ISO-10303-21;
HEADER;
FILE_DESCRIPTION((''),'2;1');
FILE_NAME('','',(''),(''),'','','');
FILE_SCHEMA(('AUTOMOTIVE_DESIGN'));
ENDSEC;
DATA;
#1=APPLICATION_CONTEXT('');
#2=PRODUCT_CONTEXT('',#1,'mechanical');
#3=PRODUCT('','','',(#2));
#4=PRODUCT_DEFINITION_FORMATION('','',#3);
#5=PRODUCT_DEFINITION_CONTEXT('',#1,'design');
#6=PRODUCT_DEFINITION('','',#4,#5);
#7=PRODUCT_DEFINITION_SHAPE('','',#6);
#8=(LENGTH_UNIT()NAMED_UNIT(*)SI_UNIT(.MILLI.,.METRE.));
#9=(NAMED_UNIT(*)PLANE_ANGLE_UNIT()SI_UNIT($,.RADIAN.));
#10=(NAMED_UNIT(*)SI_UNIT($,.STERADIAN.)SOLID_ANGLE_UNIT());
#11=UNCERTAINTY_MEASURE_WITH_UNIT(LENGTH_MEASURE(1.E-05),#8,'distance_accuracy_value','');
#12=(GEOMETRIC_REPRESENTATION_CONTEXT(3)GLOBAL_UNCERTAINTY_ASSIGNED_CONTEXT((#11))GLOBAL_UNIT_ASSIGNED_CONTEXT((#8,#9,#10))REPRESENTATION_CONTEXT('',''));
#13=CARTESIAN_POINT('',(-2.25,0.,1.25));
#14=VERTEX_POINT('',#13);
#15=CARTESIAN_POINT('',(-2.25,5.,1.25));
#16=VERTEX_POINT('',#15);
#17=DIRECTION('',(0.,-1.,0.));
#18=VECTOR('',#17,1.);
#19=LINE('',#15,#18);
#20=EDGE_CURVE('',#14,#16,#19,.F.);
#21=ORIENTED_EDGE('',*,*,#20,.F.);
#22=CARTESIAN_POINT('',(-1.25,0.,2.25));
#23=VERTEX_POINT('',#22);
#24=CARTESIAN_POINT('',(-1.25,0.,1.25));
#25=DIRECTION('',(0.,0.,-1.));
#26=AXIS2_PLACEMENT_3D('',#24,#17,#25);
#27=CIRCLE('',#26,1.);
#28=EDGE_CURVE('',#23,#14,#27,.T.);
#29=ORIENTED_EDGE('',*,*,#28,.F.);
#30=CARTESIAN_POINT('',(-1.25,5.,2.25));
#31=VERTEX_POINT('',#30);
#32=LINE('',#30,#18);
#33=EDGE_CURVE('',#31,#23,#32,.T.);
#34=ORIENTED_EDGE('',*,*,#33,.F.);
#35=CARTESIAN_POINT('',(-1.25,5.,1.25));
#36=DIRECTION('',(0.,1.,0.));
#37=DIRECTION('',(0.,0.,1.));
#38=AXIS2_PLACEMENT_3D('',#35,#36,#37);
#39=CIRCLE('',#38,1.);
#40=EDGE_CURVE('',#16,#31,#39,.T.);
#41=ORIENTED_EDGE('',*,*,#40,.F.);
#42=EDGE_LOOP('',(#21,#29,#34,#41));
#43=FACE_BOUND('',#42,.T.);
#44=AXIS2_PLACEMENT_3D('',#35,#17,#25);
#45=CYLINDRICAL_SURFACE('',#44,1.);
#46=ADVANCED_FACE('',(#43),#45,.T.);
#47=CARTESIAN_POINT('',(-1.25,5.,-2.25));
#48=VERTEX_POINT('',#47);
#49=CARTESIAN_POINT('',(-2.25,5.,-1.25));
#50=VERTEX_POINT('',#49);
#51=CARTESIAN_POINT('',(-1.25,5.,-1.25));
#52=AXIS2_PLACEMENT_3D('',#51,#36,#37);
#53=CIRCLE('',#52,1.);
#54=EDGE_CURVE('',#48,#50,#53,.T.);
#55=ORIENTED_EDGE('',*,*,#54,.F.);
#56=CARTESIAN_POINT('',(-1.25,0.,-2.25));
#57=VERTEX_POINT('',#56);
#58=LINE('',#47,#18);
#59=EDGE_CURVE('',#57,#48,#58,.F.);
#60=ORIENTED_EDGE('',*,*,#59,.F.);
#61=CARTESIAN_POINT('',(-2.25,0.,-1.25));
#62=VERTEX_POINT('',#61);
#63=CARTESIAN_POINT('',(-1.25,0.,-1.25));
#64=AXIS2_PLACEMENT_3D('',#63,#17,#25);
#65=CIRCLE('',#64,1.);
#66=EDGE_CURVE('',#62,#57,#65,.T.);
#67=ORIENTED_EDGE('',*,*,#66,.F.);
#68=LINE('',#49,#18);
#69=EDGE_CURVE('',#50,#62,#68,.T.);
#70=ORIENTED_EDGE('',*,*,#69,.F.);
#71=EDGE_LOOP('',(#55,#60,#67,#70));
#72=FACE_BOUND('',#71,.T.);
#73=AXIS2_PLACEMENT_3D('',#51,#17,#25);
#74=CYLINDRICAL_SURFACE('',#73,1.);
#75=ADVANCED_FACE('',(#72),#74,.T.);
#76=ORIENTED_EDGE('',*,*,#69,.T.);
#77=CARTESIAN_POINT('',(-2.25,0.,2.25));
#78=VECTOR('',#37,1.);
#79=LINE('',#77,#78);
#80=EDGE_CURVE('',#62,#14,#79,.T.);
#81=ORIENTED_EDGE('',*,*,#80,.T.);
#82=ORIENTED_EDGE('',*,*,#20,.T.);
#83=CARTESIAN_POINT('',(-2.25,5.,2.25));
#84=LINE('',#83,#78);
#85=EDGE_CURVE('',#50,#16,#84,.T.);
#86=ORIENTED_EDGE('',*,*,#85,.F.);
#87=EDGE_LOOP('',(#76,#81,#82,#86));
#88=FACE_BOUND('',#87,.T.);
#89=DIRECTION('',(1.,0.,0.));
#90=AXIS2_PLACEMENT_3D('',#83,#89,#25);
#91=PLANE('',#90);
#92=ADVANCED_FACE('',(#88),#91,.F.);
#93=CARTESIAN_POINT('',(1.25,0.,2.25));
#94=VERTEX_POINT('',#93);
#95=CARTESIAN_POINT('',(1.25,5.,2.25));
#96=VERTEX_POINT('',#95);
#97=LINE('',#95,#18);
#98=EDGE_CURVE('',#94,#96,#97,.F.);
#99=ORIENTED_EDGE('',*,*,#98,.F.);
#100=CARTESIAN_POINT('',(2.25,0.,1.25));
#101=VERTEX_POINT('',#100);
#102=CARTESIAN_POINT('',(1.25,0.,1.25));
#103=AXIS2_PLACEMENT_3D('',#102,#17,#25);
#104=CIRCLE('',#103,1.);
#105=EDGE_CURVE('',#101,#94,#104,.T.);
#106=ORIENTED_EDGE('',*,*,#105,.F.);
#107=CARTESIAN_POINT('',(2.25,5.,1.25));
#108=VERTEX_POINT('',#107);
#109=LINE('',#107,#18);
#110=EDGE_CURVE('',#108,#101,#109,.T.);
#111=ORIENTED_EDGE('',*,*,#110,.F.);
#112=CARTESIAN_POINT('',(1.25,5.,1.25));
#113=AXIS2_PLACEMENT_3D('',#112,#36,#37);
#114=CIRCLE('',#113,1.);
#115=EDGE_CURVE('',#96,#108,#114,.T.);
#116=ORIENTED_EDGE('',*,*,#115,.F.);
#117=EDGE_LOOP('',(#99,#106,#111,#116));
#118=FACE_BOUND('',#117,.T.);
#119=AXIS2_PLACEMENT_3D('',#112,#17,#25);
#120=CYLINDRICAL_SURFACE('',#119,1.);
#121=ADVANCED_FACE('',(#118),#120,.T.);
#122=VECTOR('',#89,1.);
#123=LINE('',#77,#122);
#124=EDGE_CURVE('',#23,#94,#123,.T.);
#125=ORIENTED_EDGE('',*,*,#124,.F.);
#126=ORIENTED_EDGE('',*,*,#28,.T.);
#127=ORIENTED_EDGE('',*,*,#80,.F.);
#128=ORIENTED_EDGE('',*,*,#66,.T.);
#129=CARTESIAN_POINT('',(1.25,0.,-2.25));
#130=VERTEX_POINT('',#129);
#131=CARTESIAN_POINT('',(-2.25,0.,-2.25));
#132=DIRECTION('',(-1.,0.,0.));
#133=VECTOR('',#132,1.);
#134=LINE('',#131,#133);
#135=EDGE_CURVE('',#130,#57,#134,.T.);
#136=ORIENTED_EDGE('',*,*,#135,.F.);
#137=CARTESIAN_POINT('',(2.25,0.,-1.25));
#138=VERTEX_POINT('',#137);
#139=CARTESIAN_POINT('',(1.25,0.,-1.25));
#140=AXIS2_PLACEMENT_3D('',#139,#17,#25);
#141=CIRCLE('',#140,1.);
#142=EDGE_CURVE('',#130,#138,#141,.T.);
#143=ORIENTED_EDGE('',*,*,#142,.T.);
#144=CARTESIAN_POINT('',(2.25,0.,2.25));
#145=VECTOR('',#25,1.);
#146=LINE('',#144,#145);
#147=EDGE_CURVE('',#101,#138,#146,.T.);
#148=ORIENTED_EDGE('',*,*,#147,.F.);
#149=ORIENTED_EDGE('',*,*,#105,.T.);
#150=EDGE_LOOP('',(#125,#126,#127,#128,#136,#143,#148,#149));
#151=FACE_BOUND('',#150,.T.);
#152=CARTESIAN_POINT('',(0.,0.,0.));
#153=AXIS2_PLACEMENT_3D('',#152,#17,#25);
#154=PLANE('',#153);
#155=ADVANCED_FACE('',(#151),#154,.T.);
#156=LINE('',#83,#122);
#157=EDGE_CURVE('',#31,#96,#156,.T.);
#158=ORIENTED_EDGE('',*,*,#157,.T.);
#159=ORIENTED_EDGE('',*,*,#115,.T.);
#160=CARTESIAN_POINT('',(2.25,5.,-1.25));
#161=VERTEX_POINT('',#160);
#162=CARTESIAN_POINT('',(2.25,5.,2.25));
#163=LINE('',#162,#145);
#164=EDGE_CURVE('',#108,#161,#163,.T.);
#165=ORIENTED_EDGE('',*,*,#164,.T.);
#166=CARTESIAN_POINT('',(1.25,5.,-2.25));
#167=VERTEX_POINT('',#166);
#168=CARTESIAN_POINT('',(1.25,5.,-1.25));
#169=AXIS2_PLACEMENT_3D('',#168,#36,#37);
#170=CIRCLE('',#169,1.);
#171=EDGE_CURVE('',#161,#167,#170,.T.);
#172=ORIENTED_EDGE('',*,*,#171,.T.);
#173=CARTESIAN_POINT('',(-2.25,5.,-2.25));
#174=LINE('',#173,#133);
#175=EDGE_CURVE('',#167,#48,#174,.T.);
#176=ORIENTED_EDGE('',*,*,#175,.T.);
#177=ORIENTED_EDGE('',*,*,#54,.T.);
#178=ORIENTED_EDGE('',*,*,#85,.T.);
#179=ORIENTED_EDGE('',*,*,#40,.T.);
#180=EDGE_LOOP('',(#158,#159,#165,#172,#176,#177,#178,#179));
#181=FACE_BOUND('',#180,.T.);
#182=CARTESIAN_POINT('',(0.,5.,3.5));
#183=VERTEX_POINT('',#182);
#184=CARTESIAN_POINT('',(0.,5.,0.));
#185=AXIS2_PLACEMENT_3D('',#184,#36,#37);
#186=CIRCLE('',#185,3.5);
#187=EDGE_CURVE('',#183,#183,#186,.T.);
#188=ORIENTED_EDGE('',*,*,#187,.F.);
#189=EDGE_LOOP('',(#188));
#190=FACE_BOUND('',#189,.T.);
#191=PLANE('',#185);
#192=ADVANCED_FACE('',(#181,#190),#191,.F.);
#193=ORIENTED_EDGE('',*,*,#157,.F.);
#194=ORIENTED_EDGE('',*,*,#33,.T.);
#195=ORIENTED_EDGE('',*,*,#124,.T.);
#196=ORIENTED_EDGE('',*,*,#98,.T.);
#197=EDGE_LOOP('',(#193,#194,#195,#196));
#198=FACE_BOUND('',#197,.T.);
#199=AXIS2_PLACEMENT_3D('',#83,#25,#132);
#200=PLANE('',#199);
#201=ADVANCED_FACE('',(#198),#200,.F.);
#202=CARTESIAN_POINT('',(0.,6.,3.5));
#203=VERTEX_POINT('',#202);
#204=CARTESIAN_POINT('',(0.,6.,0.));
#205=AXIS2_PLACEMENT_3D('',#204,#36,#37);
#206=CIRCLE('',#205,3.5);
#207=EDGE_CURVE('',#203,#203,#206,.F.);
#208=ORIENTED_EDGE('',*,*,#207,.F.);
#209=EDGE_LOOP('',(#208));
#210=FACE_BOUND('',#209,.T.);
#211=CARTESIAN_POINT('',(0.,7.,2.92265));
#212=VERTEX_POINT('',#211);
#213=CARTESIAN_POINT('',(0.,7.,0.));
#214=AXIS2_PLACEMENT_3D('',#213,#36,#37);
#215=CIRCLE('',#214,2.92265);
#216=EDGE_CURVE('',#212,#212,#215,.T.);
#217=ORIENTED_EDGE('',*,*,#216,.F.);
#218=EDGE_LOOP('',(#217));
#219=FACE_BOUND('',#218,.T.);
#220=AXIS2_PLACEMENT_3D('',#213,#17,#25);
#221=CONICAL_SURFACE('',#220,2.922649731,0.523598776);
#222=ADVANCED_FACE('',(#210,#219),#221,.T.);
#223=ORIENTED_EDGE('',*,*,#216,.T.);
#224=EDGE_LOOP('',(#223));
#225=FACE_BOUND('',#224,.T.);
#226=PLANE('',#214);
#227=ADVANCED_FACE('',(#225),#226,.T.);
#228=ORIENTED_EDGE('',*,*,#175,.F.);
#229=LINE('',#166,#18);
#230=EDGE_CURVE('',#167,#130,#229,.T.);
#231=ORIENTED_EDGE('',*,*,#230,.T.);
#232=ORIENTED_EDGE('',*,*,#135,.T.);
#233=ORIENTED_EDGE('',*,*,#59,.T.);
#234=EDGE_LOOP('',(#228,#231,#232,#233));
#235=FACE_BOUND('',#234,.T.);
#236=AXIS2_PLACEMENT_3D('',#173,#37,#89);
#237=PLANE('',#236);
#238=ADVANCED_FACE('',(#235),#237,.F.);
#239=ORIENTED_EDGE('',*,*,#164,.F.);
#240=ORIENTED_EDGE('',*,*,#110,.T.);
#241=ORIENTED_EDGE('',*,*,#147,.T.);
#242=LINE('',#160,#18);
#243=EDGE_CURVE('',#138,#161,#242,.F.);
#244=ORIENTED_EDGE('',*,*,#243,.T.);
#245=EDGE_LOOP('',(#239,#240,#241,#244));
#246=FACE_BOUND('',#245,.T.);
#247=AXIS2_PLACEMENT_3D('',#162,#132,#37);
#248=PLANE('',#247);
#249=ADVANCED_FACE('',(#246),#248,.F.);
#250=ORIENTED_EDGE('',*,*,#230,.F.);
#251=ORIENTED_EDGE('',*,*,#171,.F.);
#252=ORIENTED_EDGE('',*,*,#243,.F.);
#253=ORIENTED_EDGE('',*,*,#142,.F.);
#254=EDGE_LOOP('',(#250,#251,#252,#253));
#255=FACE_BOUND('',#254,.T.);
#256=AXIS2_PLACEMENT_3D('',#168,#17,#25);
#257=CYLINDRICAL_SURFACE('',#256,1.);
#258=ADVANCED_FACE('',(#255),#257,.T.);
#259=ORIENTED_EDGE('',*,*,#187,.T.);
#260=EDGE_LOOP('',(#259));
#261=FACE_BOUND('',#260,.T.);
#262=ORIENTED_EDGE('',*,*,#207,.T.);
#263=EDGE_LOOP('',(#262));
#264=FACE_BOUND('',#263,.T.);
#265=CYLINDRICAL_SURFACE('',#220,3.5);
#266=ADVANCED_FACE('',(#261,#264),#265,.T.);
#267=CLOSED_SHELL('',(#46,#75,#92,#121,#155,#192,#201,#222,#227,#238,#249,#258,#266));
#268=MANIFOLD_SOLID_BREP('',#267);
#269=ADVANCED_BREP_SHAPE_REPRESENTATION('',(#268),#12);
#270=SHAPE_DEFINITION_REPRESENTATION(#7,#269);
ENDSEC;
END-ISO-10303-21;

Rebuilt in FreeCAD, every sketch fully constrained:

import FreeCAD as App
import Part
import Sketcher

V = App.Vector
Q = App.Units.Quantity


def edges_at(feature, points):
    """Names of the edges that pass closest to the given points."""
    edges = feature.Shape.Edges
    near = lambda p: min(range(len(edges)), key=lambda i: edges[i].distToShape(Part.Vertex(*p))[0])
    return sorted({f"Edge{near(p) + 1}" for p in points})


def add_polygon(sketch, points):
    """Adds a closed chain of lines whose ends are joined by coincident constraints."""
    first, n = sketch.GeometryCount, len(points)
    for a, b in zip(points, points[1:] + points[:1]):
        sketch.addGeometry(Part.LineSegment(App.Vector(*a, 0), App.Vector(*b, 0)), False)
    for i in range(n):
        sketch.addConstraint(Sketcher.Constraint("Coincident", first + i, 2, first + (i + 1) % n, 1))

doc = App.newDocument("Part")
body = doc.addObject("PartDesign::Body", "Body")

# Sketch on XZ plane
sketch1 = body.newObject("Sketcher::SketchObject", "Sketch")
sketch1.AttachmentSupport = (doc.getObject("XZ_Plane"), [""])
sketch1.MapMode = "FlatFace"
add_polygon(sketch1, [(-2.25, -2.25), (-2.25, 2.25), (2.25, 2.25), (2.25, -2.25)])  # lines 0-3
sketch1.addConstraint(Sketcher.Constraint("Vertical", 0))
sketch1.addConstraint(Sketcher.Constraint("Horizontal", 1))
sketch1.addConstraint(Sketcher.Constraint("Vertical", 2))
sketch1.addConstraint(Sketcher.Constraint("Horizontal", 3))
sketch1.addConstraint(Sketcher.Constraint("Symmetric", 0, 2, 2, 2, -1, 1))
sketch1.addConstraint(Sketcher.Constraint("Equal", 3, 0))
sketch1.addConstraint(Sketcher.Constraint("DistanceX", 1, 1, 1, 2, Q("4.5 mm")))
pad1 = body.newObject("PartDesign::Pad", "Pad")
pad1.Profile = sketch1
pad1.Length = 5
pad1.Reversed = True

# Sketch on XZ plane
sketch2 = body.newObject("Sketcher::SketchObject", "Sketch001")
sketch2.AttachmentSupport = (doc.getObject("XZ_Plane"), [""])
sketch2.MapMode = "FlatFace"
sketch2.AttachmentOffset = App.Placement(V(0, 0, -5), App.Rotation())
sketch2.addGeometry(Part.Circle(V(0, 0, 0), V(0, 0, 1), 3.5), False)
sketch2.addConstraint(Sketcher.Constraint("Coincident", 0, 3, -1, 1))
sketch2.addConstraint(Sketcher.Constraint("Diameter", 0, Q("7 mm")))
pad2 = body.newObject("PartDesign::Pad", "Pad001")
pad2.Profile = sketch2
pad2.Length = 2
pad2.Reversed = True
doc.recompute()

chamfer = body.newObject("PartDesign::Chamfer", "Chamfer")
chamfer.Base = (pad2, edges_at(pad2, [(0, 7, -3.5)]))
chamfer.ChamferType = "Two distances"
chamfer.Size = 1
chamfer.Size2 = 0.57735
doc.recompute()

fillet = body.newObject("PartDesign::Fillet", "Fillet")
fillet.Base = (chamfer, edges_at(chamfer, [
    (2.25, 2.5, 2.25),
    (-2.25, 2.5, 2.25),
    (-2.25, 2.5, -2.25),
    (2.25, 2.5, -2.25),
]))
fillet.Radius = 1

doc.recompute()
